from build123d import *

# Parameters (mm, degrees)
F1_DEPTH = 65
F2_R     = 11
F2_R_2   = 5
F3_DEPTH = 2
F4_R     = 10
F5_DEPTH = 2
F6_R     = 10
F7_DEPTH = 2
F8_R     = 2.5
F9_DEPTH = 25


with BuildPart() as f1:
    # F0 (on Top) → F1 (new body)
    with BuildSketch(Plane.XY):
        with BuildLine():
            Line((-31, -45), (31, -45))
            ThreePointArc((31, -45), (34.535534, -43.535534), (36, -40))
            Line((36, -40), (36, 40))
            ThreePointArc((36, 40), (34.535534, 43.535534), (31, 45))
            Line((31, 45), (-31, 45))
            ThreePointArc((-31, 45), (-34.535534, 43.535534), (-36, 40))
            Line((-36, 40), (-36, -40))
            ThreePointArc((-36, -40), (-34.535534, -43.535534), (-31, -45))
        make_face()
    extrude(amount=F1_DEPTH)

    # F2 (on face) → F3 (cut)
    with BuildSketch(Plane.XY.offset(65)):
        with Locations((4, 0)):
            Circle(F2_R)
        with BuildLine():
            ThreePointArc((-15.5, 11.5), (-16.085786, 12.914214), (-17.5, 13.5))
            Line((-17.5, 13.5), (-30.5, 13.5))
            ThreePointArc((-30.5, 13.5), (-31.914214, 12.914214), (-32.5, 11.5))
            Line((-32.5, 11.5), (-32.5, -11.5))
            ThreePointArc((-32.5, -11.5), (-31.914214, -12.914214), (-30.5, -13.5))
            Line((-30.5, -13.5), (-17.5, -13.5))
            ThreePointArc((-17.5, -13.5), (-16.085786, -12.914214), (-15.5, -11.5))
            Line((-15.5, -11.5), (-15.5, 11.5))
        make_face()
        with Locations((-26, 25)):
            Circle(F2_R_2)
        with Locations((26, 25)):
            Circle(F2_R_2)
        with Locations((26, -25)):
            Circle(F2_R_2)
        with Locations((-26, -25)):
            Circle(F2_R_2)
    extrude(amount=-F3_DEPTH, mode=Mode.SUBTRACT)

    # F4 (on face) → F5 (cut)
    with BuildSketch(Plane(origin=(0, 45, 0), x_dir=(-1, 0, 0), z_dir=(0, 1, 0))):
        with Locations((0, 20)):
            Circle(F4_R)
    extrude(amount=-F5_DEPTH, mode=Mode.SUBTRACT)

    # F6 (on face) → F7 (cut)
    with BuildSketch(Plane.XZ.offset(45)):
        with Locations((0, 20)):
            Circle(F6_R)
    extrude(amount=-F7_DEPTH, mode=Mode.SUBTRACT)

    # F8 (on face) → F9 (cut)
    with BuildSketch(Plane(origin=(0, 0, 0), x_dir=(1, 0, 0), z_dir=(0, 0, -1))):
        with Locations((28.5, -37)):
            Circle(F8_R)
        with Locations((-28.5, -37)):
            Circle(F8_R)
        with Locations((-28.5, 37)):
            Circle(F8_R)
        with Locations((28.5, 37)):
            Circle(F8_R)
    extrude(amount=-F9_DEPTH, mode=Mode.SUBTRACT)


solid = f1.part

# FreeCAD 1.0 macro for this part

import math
import FreeCAD as App
import Part
import Sketcher

V = App.Vector

doc = App.newDocument("Part")
body = doc.addObject("PartDesign::Body", "Body")

# Sketch on XY plane
sketch1 = body.newObject("Sketcher::SketchObject", "Sketch")
sketch1.AttachmentSupport = (doc.getObject("XY_Plane"), [""])
sketch1.MapMode = "FlatFace"
sketch1.addGeometry([
    Part.LineSegment(V(-31, -45, 0), V(31, -45, 0)),  # 0
    Part.ArcOfCircle(Part.Circle(V(31, -40, 0), V(0, 0, 1), 5), math.radians(-90.000004), math.radians(0.000004)),  # 1
    Part.LineSegment(V(36, -40, 0), V(36, 40, 0)),  # 2
    Part.ArcOfCircle(Part.Circle(V(31, 40, 0), V(0, 0, 1), 5), math.radians(-0.000004), math.radians(90.000004)),  # 3
    Part.LineSegment(V(31, 45, 0), V(-31, 45, 0)),  # 4
    Part.ArcOfCircle(Part.Circle(V(-31, 40, 0), V(0, 0, 1), 5), math.radians(89.999996), math.radians(180.000004)),  # 5
    Part.LineSegment(V(-36, 40, 0), V(-36, -40, 0)),  # 6
    Part.ArcOfCircle(Part.Circle(V(-31, -40, 0), V(0, 0, 1), 5), math.radians(179.999996), math.radians(270.000004)),  # 7
], False)
sketch1.addConstraint([
    Sketcher.Constraint("Tangent", 0, 2, 1, 1),
    Sketcher.Constraint("Tangent", 1, 2, 2, 1),
    Sketcher.Constraint("Tangent", 2, 2, 3, 1),
    Sketcher.Constraint("Tangent", 3, 2, 4, 1),
    Sketcher.Constraint("Tangent", 4, 2, 5, 1),
    Sketcher.Constraint("Tangent", 5, 2, 6, 1),
    Sketcher.Constraint("Tangent", 6, 2, 7, 1),
    Sketcher.Constraint("Tangent", 7, 2, 0, 1),
    Sketcher.Constraint("Horizontal", 0),
    Sketcher.Constraint("Vertical", 2),
    Sketcher.Constraint("Horizontal", 4),
    Sketcher.Constraint("Vertical", 6),
    Sketcher.Constraint("Equal", 1, 3),
    Sketcher.Constraint("Equal", 3, 5),
    Sketcher.Constraint("Equal", 5, 7),
    Sketcher.Constraint("Symmetric", 1, 3, 5, 3, -1, 1),
    Sketcher.Constraint("Radius", 1, 5.0),
    Sketcher.Constraint("DistanceX", 0, 1, 0, 2, 62.0),
    Sketcher.Constraint("DistanceY", 2, 1, 2, 2, 80.0),
])
pad1 = body.newObject("PartDesign::Pad", "Pad")
pad1.Profile = sketch1
pad1.Length = 65

# Sketch on XY plane
sketch2 = body.newObject("Sketcher::SketchObject", "Sketch001")
sketch2.AttachmentSupport = (doc.getObject("XY_Plane"), [""])
sketch2.MapMode = "FlatFace"
sketch2.AttachmentOffset = App.Placement(V(0, 0, 65), App.Rotation())
sketch2.addGeometry([
    Part.Circle(V(4, 0, 0), V(0, 0, 1), 11),  # 0
    Part.ArcOfCircle(Part.Circle(V(-17.499999, 11.500001, 0), V(0, 0, 1), 1.999999), math.radians(-0.000043), math.radians(90.000043)),  # 1
    Part.LineSegment(V(-17.5, 13.5, 0), V(-30.5, 13.5, 0)),  # 2
    Part.ArcOfCircle(Part.Circle(V(-30.500001, 11.500001, 0), V(0, 0, 1), 1.999999), math.radians(89.999957), math.radians(180.000043)),  # 3
    Part.LineSegment(V(-32.5, 11.5, 0), V(-32.5, -11.5, 0)),  # 4
    Part.ArcOfCircle(Part.Circle(V(-30.500001, -11.500001, 0), V(0, 0, 1), 1.999999), math.radians(179.999957), math.radians(270.000043)),  # 5
    Part.LineSegment(V(-30.5, -13.5, 0), V(-17.5, -13.5, 0)),  # 6
    Part.ArcOfCircle(Part.Circle(V(-17.499999, -11.500001, 0), V(0, 0, 1), 1.999999), math.radians(-90.000043), math.radians(0.000043)),  # 7
    Part.LineSegment(V(-15.5, -11.5, 0), V(-15.5, 11.5, 0)),  # 8
    Part.Circle(V(-26, 25, 0), V(0, 0, 1), 5),  # 9
    Part.Circle(V(26, 25, 0), V(0, 0, 1), 5),  # 10
    Part.Circle(V(26, -25, 0), V(0, 0, 1), 5),  # 11
    Part.Circle(V(-26, -25, 0), V(0, 0, 1), 5),  # 12
], False)
sketch2.addConstraint([
    Sketcher.Constraint("Tangent", 1, 2, 2, 1),
    Sketcher.Constraint("Tangent", 2, 2, 3, 1),
    Sketcher.Constraint("Tangent", 3, 2, 4, 1),
    Sketcher.Constraint("Tangent", 4, 2, 5, 1),
    Sketcher.Constraint("Tangent", 5, 2, 6, 1),
    Sketcher.Constraint("Tangent", 6, 2, 7, 1),
    Sketcher.Constraint("Tangent", 7, 2, 8, 1),
    Sketcher.Constraint("Tangent", 8, 2, 1, 1),
    Sketcher.Constraint("Horizontal", 2),
    Sketcher.Constraint("Vertical", 4),
    Sketcher.Constraint("Horizontal", 6),
    Sketcher.Constraint("Vertical", 8),
    Sketcher.Constraint("Equal", 1, 3),
    Sketcher.Constraint("Equal", 3, 5),
    Sketcher.Constraint("Equal", 5, 7),
    Sketcher.Constraint("Equal", 9, 10),
    Sketcher.Constraint("Equal", 10, 11),
    Sketcher.Constraint("Equal", 11, 12),
    Sketcher.Constraint("Symmetric", 9, 3, 11, 3, -1, 1),
    Sketcher.Constraint("Symmetric", 10, 3, 12, 3, -1, 1),
    Sketcher.Constraint("Symmetric", 9, 3, 10, 3, -2),
    Sketcher.Constraint("PointOnObject", 0, 3, -1),
    Sketcher.Constraint("Diameter", 0, 22.0),
    Sketcher.Constraint("Diameter", 9, 10.0),
    Sketcher.Constraint("Radius", 1, 1.999999),
    Sketcher.Constraint("DistanceX", 2, 2, 2, 1, 13.0),
    Sketcher.Constraint("DistanceY", 4, 2, 4, 1, 23.0),
    Sketcher.Constraint("DistanceX", -1, 1, 0, 3, 4.0),
    Sketcher.Constraint("DistanceX", 9, 3, -1, 1, 26.0),
    Sketcher.Constraint("DistanceY", -1, 1, 9, 3, 25.0),
    Sketcher.Constraint("DistanceX", 1, 3, -1, 1, 17.499999),
    Sketcher.Constraint("DistanceY", -1, 1, 1, 3, 11.500001),
])
pocket1 = body.newObject("PartDesign::Pocket", "Pocket")
pocket1.Profile = sketch2
pocket1.Length = 2

# Sketch on XZ plane
sketch3 = body.newObject("Sketcher::SketchObject", "Sketch002")
sketch3.AttachmentSupport = (doc.getObject("XZ_Plane"), [""])
sketch3.MapMode = "FlatFace"
sketch3.AttachmentOffset = App.Placement(V(0, 0, -45), App.Rotation())
sketch3.addGeometry(Part.Circle(V(0, 20, 0), V(0, 0, 1), 10), False)
sketch3.addConstraint([
    Sketcher.Constraint("PointOnObject", 0, 3, -2),
    Sketcher.Constraint("Diameter", 0, 20.0),
    Sketcher.Constraint("DistanceY", -1, 1, 0, 3, 20.0),
])
pocket2 = body.newObject("PartDesign::Pocket", "Pocket001")
pocket2.Profile = sketch3
pocket2.Length = 2
pocket2.Reversed = True

# Sketch on XZ plane
sketch4 = body.newObject("Sketcher::SketchObject", "Sketch003")
sketch4.AttachmentSupport = (doc.getObject("XZ_Plane"), [""])
sketch4.MapMode = "FlatFace"
sketch4.AttachmentOffset = App.Placement(V(0, 0, 45), App.Rotation())
sketch4.addGeometry(Part.Circle(V(0, 20, 0), V(0, 0, 1), 10), False)
sketch4.addConstraint([
    Sketcher.Constraint("PointOnObject", 0, 3, -2),
    Sketcher.Constraint("Diameter", 0, 20.0),
    Sketcher.Constraint("DistanceY", -1, 1, 0, 3, 20.0),
])
pocket3 = body.newObject("PartDesign::Pocket", "Pocket002")
pocket3.Profile = sketch4
pocket3.Length = 2

# Sketch on XY plane
sketch5 = body.newObject("Sketcher::SketchObject", "Sketch004")
sketch5.AttachmentSupport = (doc.getObject("XY_Plane"), [""])
sketch5.MapMode = "FlatFace"
sketch5.addGeometry([
    Part.Circle(V(28.5, 37, 0), V(0, 0, 1), 2.5),
    Part.Circle(V(-28.5, 37, 0), V(0, 0, 1), 2.5),
    Part.Circle(V(-28.5, -37, 0), V(0, 0, 1), 2.5),
    Part.Circle(V(28.5, -37, 0), V(0, 0, 1), 2.5),
], False)
sketch5.addConstraint([
    Sketcher.Constraint("Equal", 0, 1),
    Sketcher.Constraint("Equal", 1, 2),
    Sketcher.Constraint("Equal", 2, 3),
    Sketcher.Constraint("Symmetric", 0, 3, 2, 3, -1, 1),
    Sketcher.Constraint("Symmetric", 1, 3, 3, 3, -1, 1),
    Sketcher.Constraint("Symmetric", 0, 3, 1, 3, -2),
    Sketcher.Constraint("Diameter", 0, 5.0),
    Sketcher.Constraint("DistanceY", -1, 1, 0, 3, 37.0),
    Sketcher.Constraint("DistanceX", 1, 3, 0, 3, 57.0),
])
pocket4 = body.newObject("PartDesign::Pocket", "Pocket003")
pocket4.Profile = sketch5
pocket4.Length = 25
pocket4.Reversed = True

doc.recompute()
